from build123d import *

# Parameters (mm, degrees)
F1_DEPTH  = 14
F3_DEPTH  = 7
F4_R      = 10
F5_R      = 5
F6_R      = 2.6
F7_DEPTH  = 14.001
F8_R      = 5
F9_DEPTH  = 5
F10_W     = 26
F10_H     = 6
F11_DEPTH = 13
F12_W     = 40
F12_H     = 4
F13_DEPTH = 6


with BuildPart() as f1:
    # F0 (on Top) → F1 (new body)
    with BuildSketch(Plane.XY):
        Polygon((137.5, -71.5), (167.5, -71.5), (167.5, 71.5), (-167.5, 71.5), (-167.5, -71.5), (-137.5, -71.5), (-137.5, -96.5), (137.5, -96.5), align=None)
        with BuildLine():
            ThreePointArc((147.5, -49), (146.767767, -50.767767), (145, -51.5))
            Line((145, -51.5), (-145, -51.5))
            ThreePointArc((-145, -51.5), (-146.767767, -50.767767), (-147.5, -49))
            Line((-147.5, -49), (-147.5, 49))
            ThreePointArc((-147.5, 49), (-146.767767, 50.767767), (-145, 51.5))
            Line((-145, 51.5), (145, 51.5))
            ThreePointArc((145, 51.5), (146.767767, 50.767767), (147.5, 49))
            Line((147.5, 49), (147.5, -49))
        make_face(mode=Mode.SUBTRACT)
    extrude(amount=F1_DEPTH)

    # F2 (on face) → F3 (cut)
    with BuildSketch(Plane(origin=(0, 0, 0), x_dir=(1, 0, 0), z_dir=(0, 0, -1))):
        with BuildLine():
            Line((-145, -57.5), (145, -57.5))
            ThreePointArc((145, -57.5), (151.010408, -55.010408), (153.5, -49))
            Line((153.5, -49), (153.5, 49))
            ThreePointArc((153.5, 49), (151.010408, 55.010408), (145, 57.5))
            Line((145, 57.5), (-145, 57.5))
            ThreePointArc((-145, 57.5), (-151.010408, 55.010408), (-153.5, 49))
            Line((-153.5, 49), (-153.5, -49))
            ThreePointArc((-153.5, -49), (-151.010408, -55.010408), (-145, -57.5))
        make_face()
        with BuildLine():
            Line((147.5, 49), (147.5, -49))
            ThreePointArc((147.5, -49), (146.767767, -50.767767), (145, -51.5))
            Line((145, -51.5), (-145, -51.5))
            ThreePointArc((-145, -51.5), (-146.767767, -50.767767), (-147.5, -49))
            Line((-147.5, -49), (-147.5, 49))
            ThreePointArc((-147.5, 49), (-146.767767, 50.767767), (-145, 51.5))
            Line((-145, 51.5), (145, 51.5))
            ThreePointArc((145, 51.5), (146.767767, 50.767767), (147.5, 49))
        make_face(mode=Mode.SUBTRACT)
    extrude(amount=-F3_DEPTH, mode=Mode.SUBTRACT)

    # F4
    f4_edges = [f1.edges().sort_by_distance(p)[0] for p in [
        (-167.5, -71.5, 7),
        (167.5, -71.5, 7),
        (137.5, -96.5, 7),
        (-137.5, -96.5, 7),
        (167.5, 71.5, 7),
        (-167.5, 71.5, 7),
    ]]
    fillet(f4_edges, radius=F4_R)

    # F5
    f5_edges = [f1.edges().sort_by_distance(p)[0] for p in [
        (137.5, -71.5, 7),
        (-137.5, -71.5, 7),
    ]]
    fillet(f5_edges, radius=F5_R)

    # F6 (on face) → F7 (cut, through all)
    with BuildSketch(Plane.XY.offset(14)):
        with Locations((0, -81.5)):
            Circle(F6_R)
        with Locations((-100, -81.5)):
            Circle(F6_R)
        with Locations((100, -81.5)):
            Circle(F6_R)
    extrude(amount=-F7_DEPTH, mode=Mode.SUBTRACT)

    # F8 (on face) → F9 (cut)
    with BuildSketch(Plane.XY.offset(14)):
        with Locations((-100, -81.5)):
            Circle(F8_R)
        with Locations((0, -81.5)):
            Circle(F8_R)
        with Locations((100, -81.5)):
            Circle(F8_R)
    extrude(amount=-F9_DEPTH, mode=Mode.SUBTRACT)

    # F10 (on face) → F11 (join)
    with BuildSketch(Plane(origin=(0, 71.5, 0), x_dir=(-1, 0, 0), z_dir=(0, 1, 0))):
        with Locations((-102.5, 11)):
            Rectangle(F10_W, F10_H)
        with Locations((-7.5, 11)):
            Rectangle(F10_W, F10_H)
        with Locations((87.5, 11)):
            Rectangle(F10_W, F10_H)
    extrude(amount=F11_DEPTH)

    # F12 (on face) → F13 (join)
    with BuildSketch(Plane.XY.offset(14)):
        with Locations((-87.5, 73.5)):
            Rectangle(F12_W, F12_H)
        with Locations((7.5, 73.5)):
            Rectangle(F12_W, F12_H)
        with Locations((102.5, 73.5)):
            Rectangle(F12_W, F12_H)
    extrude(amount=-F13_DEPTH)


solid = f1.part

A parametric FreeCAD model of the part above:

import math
import FreeCAD as App
import Part
import Sketcher
from FreeCAD import Vector
Q = App.Units.Quantity


def edges_at(feature, points):
    """Names of the edges that pass closest to the given points."""
    edges = feature.Shape.Edges
    near = lambda p: min(range(len(edges)), key=lambda i: edges[i].distToShape(Part.Vertex(*p))[0])
    return sorted({f"Edge{near(p) + 1}" for p in points})

doc = App.newDocument("Part")
body = doc.addObject("PartDesign::Body", "Body")

sketch1 = body.newObject("Sketcher::SketchObject", "Sketch")
sketch1.AttachmentSupport = (doc.getObject("XY_Plane"), [""])
sketch1.MapMode = "FlatFace"
sketch1.addGeometry([
    Part.LineSegment(Vector(137.5, -71.5, 0), Vector(167.5, -71.5, 0)),
    Part.LineSegment(Vector(167.5, -71.5, 0), Vector(167.5, 71.5, 0)),
    Part.LineSegment(Vector(167.5, 71.5, 0), Vector(-167.5, 71.5, 0)),
    Part.LineSegment(Vector(-167.5, 71.5, 0), Vector(-167.5, -71.5, 0)),
    Part.LineSegment(Vector(-167.5, -71.5, 0), Vector(-137.5, -71.5, 0)),
    Part.LineSegment(Vector(-137.5, -71.5, 0), Vector(-137.5, -96.5, 0)),
    Part.LineSegment(Vector(-137.5, -96.5, 0), Vector(137.5, -96.5, 0)),
    Part.LineSegment(Vector(137.5, -96.5, 0), Vector(137.5, -71.5, 0)),
    Part.LineSegment(Vector(147.5, 49, 0), Vector(147.5, -49, 0)),
    Part.ArcOfCircle(Part.Circle(Vector(145, -49, 0), Vector(0, 0, 1), 2.5), math.radians(-90), math.radians(0)),
    Part.LineSegment(Vector(145, -51.5, 0), Vector(-145, -51.5, 0)),
    Part.ArcOfCircle(Part.Circle(Vector(-145, -49, 0), Vector(0, 0, 1), 2.5), math.radians(180), math.radians(270)),
    Part.LineSegment(Vector(-147.5, -49, 0), Vector(-147.5, 49, 0)),
    Part.ArcOfCircle(Part.Circle(Vector(-145, 49, 0), Vector(0, 0, 1), 2.5), math.radians(90), math.radians(180)),
    Part.LineSegment(Vector(-145, 51.5, 0), Vector(145, 51.5, 0)),
    Part.ArcOfCircle(Part.Circle(Vector(145, 49, 0), Vector(0, 0, 1), 2.5), math.radians(0), math.radians(90)),
], False)
sketch1.addConstraint([
    Sketcher.Constraint("Coincident", 0, 2, 1, 1),
    Sketcher.Constraint("Coincident", 1, 2, 2, 1),
    Sketcher.Constraint("Coincident", 2, 2, 3, 1),
    Sketcher.Constraint("Coincident", 3, 2, 4, 1),
    Sketcher.Constraint("Coincident", 4, 2, 5, 1),
    Sketcher.Constraint("Coincident", 5, 2, 6, 1),
    Sketcher.Constraint("Coincident", 6, 2, 7, 1),
    Sketcher.Constraint("Coincident", 7, 2, 0, 1),
    Sketcher.Constraint("Tangent", 8, 2, 9, 2),
    Sketcher.Constraint("Tangent", 9, 1, 10, 1),
    Sketcher.Constraint("Tangent", 10, 2, 11, 2),
    Sketcher.Constraint("Tangent", 11, 1, 12, 1),
    Sketcher.Constraint("Tangent", 12, 2, 13, 2),
    Sketcher.Constraint("Tangent", 13, 1, 14, 1),
    Sketcher.Constraint("Tangent", 14, 2, 15, 2),
    Sketcher.Constraint("Tangent", 15, 1, 8, 1),
    Sketcher.Constraint("Horizontal", 0),
    Sketcher.Constraint("Vertical", 1),
    Sketcher.Constraint("Horizontal", 2),
    Sketcher.Constraint("Vertical", 3),
    Sketcher.Constraint("Horizontal", 4),
    Sketcher.Constraint("Vertical", 5),
    Sketcher.Constraint("Horizontal", 6),
    Sketcher.Constraint("Vertical", 7),
    Sketcher.Constraint("Vertical", 8),
    Sketcher.Constraint("Horizontal", 10),
    Sketcher.Constraint("Vertical", 12),
    Sketcher.Constraint("Horizontal", 14),
    Sketcher.Constraint("Equal", 9, 11),
    Sketcher.Constraint("Equal", 11, 13),
    Sketcher.Constraint("Equal", 13, 15),
    Sketcher.Constraint("Symmetric", 9, 3, 13, 3, -1, 1),
    Sketcher.Constraint("Symmetric", 0, 2, 2, 2, -1, 1),
    Sketcher.Constraint("Symmetric", 4, 2, 7, 2, -2),
    Sketcher.Constraint("Radius", 9, Q("2.5 mm")),
    Sketcher.Constraint("DistanceX", 0, 1, 0, 2, Q("30 mm")),
    Sketcher.Constraint("DistanceX", 2, 2, 2, 1, Q("335 mm")),
    Sketcher.Constraint("DistanceX", 10, 2, 10, 1, Q("290 mm")),
    Sketcher.Constraint("DistanceY", 1, 1, 1, 2, Q("143 mm")),
    Sketcher.Constraint("DistanceY", 5, 2, 5, 1, Q("25 mm")),
    Sketcher.Constraint("DistanceY", 8, 2, 8, 1, Q("98 mm")),
])
pad1 = body.newObject("PartDesign::Pad", "Pad")
pad1.Profile = sketch1
pad1.Length = 14

sketch2 = body.newObject("Sketcher::SketchObject", "Sketch001")
sketch2.AttachmentSupport = (doc.getObject("XY_Plane"), [""])
sketch2.MapMode = "FlatFace"
sketch2.addGeometry([
    Part.LineSegment(Vector(-145, 57.5, 0), Vector(145, 57.5, 0)),
    Part.ArcOfCircle(Part.Circle(Vector(145, 49, 0), Vector(0, 0, 1), 8.5), math.radians(0), math.radians(90)),
    Part.LineSegment(Vector(153.5, 49, 0), Vector(153.5, -49, 0)),
    Part.ArcOfCircle(Part.Circle(Vector(145, -49, 0), Vector(0, 0, 1), 8.5), math.radians(-90), math.radians(0)),
    Part.LineSegment(Vector(145, -57.5, 0), Vector(-145, -57.5, 0)),
    Part.ArcOfCircle(Part.Circle(Vector(-145, -49, 0), Vector(0, 0, 1), 8.5), math.radians(180), math.radians(270)),
    Part.LineSegment(Vector(-153.5, -49, 0), Vector(-153.5, 49, 0)),
    Part.ArcOfCircle(Part.Circle(Vector(-145, 49, 0), Vector(0, 0, 1), 8.5), math.radians(90), math.radians(180)),
    Part.ArcOfCircle(Part.Circle(Vector(145, -49, 0), Vector(0, 0, 1), 2.5), math.radians(-90), math.radians(0)),
    Part.LineSegment(Vector(147.5, -49, 0), Vector(147.5, 49, 0)),
    Part.ArcOfCircle(Part.Circle(Vector(145, 49, 0), Vector(0, 0, 1), 2.5), math.radians(0), math.radians(90)),
    Part.LineSegment(Vector(145, 51.5, 0), Vector(-145, 51.5, 0)),
    Part.ArcOfCircle(Part.Circle(Vector(-145, 49, 0), Vector(0, 0, 1), 2.5), math.radians(90), math.radians(180)),
    Part.LineSegment(Vector(-147.5, 49, 0), Vector(-147.5, -49, 0)),
    Part.ArcOfCircle(Part.Circle(Vector(-145, -49, 0), Vector(0, 0, 1), 2.5), math.radians(180), math.radians(270)),
    Part.LineSegment(Vector(-145, -51.5, 0), Vector(145, -51.5, 0)),
], False)
sketch2.addConstraint([
    Sketcher.Constraint("Tangent", 0, 2, 1, 2),
    Sketcher.Constraint("Tangent", 1, 1, 2, 1),
    Sketcher.Constraint("Tangent", 2, 2, 3, 2),
    Sketcher.Constraint("Tangent", 3, 1, 4, 1),
    Sketcher.Constraint("Tangent", 4, 2, 5, 2),
    Sketcher.Constraint("Tangent", 5, 1, 6, 1),
    Sketcher.Constraint("Tangent", 6, 2, 7, 2),
    Sketcher.Constraint("Tangent", 7, 1, 0, 1),
    Sketcher.Constraint("Tangent", 8, 2, 9, 1),
    Sketcher.Constraint("Tangent", 9, 2, 10, 1),
    Sketcher.Constraint("Tangent", 10, 2, 11, 1),
    Sketcher.Constraint("Tangent", 11, 2, 12, 1),
    Sketcher.Constraint("Tangent", 12, 2, 13, 1),
    Sketcher.Constraint("Tangent", 13, 2, 14, 1),
    Sketcher.Constraint("Tangent", 14, 2, 15, 1),
    Sketcher.Constraint("Tangent", 15, 2, 8, 1),
    Sketcher.Constraint("Horizontal", 0),
    Sketcher.Constraint("Vertical", 2),
    Sketcher.Constraint("Horizontal", 4),
    Sketcher.Constraint("Vertical", 6),
    Sketcher.Constraint("Vertical", 9),
    Sketcher.Constraint("Horizontal", 11),
    Sketcher.Constraint("Vertical", 13),
    Sketcher.Constraint("Horizontal", 15),
    Sketcher.Constraint("Coincident", 8, 3, 3, 3),
    Sketcher.Constraint("Coincident", 10, 3, 1, 3),
    Sketcher.Constraint("Coincident", 12, 3, 7, 3),
    Sketcher.Constraint("Equal", 1, 3),
    Sketcher.Constraint("Equal", 3, 5),
    Sketcher.Constraint("Equal", 5, 7),
    Sketcher.Constraint("Equal", 12, 14),
    Sketcher.Constraint("Symmetric", 1, 3, 5, 3, -1, 1),
    Sketcher.Constraint("Radius", 1, Q("8.499999 mm")),
    Sketcher.Constraint("Radius", 8, Q("2.5 mm")),
    Sketcher.Constraint("DistanceX", 0, 1, 0, 2, Q("290 mm")),
    Sketcher.Constraint("DistanceY", 2, 2, 2, 1, Q("98 mm")),
])
pocket1 = body.newObject("PartDesign::Pocket", "Pocket")
pocket1.Profile = sketch2
pocket1.Length = 7
pocket1.Reversed = True
doc.recompute()

fillet = body.newObject("PartDesign::Fillet", "Fillet")
fillet.Base = (pocket1, edges_at(pocket1, [
    (-167.5, -71.5, 7),
    (167.5, -71.5, 7),
    (137.5, -96.5, 7),
    (-137.5, -96.5, 7),
    (167.5, 71.5, 7),
    (-167.5, 71.5, 7),
]))
fillet.Radius = 10
doc.recompute()

fillet2 = body.newObject("PartDesign::Fillet", "Fillet001")
fillet2.Base = (fillet, edges_at(fillet, [(137.5, -71.5, 7), (-137.5, -71.5, 7)]))
fillet2.Radius = 5

sketch3 = body.newObject("Sketcher::SketchObject", "Sketch002")
sketch3.AttachmentSupport = (doc.getObject("XY_Plane"), [""])
sketch3.MapMode = "FlatFace"
sketch3.AttachmentOffset = App.Placement(Vector(0, 0, 14), App.Rotation())
sketch3.addGeometry([
    Part.Circle(Vector(0, -81.5, 0), Vector(0, 0, 1), 2.6),
    Part.Circle(Vector(-100, -81.5, 0), Vector(0, 0, 1), 2.6),
    Part.Circle(Vector(100, -81.5, 0), Vector(0, 0, 1), 2.6),
], False)
sketch3.addConstraint([
    Sketcher.Constraint("Equal", 0, 1),
    Sketcher.Constraint("Equal", 1, 2),
    Sketcher.Constraint("Symmetric", 1, 3, 2, 3, -2),
    Sketcher.Constraint("PointOnObject", 0, 3, -2),
    Sketcher.Constraint("Horizontal", 0, 3, 1, 3),
    Sketcher.Constraint("Diameter", 0, Q("5.2 mm")),
    Sketcher.Constraint("DistanceX", 1, 3, -1, 1, Q("100 mm")),
    Sketcher.Constraint("DistanceY", 0, 3, -1, 1, Q("81.5 mm")),
])
pocket2 = body.newObject("PartDesign::Pocket", "Pocket001")
pocket2.Profile = sketch3
pocket2.Type = "ThroughAll"

sketch4 = body.newObject("Sketcher::SketchObject", "Sketch003")
sketch4.AttachmentSupport = (doc.getObject("XY_Plane"), [""])
sketch4.MapMode = "FlatFace"
sketch4.AttachmentOffset = App.Placement(Vector(0, 0, 14), App.Rotation())
sketch4.addGeometry([
    Part.Circle(Vector(-100, -82, 0), Vector(0, 0, 1), 5),
    Part.Circle(Vector(0, -82, 0), Vector(0, 0, 1), 5),
    Part.Circle(Vector(100, -82, 0), Vector(0, 0, 1), 5),
], False)
sketch4.addConstraint([
    Sketcher.Constraint("Equal", 0, 1),
    Sketcher.Constraint("Equal", 1, 2),
    Sketcher.Constraint("Symmetric", 0, 3, 2, 3, -2),
    Sketcher.Constraint("PointOnObject", 1, 3, -2),
    Sketcher.Constraint("Horizontal", 0, 3, 1, 3),
    Sketcher.Constraint("Diameter", 0, Q("10 mm")),
    Sketcher.Constraint("DistanceX", 0, 3, -1, 1, Q("100 mm")),
    Sketcher.Constraint("DistanceY", 0, 3, -1, 1, Q("81.5 mm")),
])
pocket3 = body.newObject("PartDesign::Pocket", "Pocket002")
pocket3.Profile = sketch4
pocket3.Length = 5

sketch5 = body.newObject("Sketcher::SketchObject", "Sketch004")
sketch5.AttachmentSupport = (doc.getObject("XZ_Plane"), [""])
sketch5.MapMode = "FlatFace"
sketch5.AttachmentOffset = App.Placement(Vector(0, 0, -71.5), App.Rotation())
sketch5.addGeometry([
    Part.LineSegment(Vector(116, 14, 0), Vector(116, 8, 0)),
    Part.LineSegment(Vector(116, 8, 0), Vector(90, 8, 0)),
    Part.LineSegment(Vector(90, 8, 0), Vector(90, 14, 0)),
    Part.LineSegment(Vector(90, 14, 0), Vector(116, 14, 0)),
    Part.LineSegment(Vector(20, 14, 0), Vector(20, 8, 0)),
    Part.LineSegment(Vector(20, 8, 0), Vector(-6, 8, 0)),
    Part.LineSegment(Vector(-6, 8, 0), Vector(-6, 14, 0)),
    Part.LineSegment(Vector(-6, 14, 0), Vector(20, 14, 0)),
    Part.LineSegment(Vector(-74, 14, 0), Vector(-74, 8, 0)),
    Part.LineSegment(Vector(-74, 8, 0), Vector(-100, 8, 0)),
    Part.LineSegment(Vector(-100, 8, 0), Vector(-100, 14, 0)),
    Part.LineSegment(Vector(-100, 14, 0), Vector(-74, 14, 0)),
], False)
sketch5.addConstraint([
    Sketcher.Constraint("Coincident", 0, 2, 1, 1),
    Sketcher.Constraint("Coincident", 1, 2, 2, 1),
    Sketcher.Constraint("Coincident", 2, 2, 3, 1),
    Sketcher.Constraint("Coincident", 3, 2, 0, 1),
    Sketcher.Constraint("Coincident", 4, 2, 5, 1),
    Sketcher.Constraint("Coincident", 5, 2, 6, 1),
    Sketcher.Constraint("Coincident", 6, 2, 7, 1),
    Sketcher.Constraint("Coincident", 7, 2, 4, 1),
    Sketcher.Constraint("Coincident", 8, 2, 9, 1),
    Sketcher.Constraint("Coincident", 9, 2, 10, 1),
    Sketcher.Constraint("Coincident", 10, 2, 11, 1),
    Sketcher.Constraint("Coincident", 11, 2, 8, 1),
    Sketcher.Constraint("Vertical", 0),
    Sketcher.Constraint("Horizontal", 1),
    Sketcher.Constraint("Vertical", 2),
    Sketcher.Constraint("Horizontal", 3),
    Sketcher.Constraint("Vertical", 4),
    Sketcher.Constraint("Horizontal", 5),
    Sketcher.Constraint("Vertical", 6),
    Sketcher.Constraint("Horizontal", 7),
    Sketcher.Constraint("Vertical", 8),
    Sketcher.Constraint("Horizontal", 9),
    Sketcher.Constraint("Vertical", 10),
    Sketcher.Constraint("Horizontal", 11),
    Sketcher.Constraint("Horizontal", 1, 2, 4, 2),
    Sketcher.Constraint("Horizontal", 3, 2, 6, 2),
    Sketcher.Constraint("Horizontal", 5, 2, 8, 2),
    Sketcher.Constraint("Horizontal", 7, 2, 10, 2),
    Sketcher.Constraint("Equal", 3, 5),
    Sketcher.Constraint("Equal", 7, 9),
    Sketcher.Constraint("DistanceX", 1, 2, 1, 1, Q("26 mm")),
    Sketcher.Constraint("DistanceY", 0, 2, 0, 1, Q("6 mm")),
    Sketcher.Constraint("DistanceY", -1, 1, 0, 2, Q("8 mm")),
    Sketcher.Constraint("DistanceX", 4, 2, 1, 2, Q("69 mm")),
    Sketcher.Constraint("DistanceX", 8, 2, 5, 2, Q("69 mm")),
    Sketcher.Constraint("DistanceX", -1, 1, 0, 2, Q("115.5 mm")),
])
pad2 = body.newObject("PartDesign::Pad", "Pad001")
pad2.Profile = sketch5
pad2.Length = 13
pad2.Reversed = True

sketch6 = body.newObject("Sketcher::SketchObject", "Sketch005")
sketch6.AttachmentSupport = (doc.getObject("XY_Plane"), [""])
sketch6.MapMode = "FlatFace"
sketch6.AttachmentOffset = App.Placement(Vector(0, 0, 14), App.Rotation())
sketch6.addGeometry([
    Part.LineSegment(Vector(-107.5, 75.5, 0), Vector(-107.5, 71.5, 0)),
    Part.LineSegment(Vector(-107.5, 71.5, 0), Vector(-67.5, 71.5, 0)),
    Part.LineSegment(Vector(-67.5, 71.5, 0), Vector(-67.5, 75.5, 0)),
    Part.LineSegment(Vector(-67.5, 75.5, 0), Vector(-107.5, 75.5, 0)),
    Part.LineSegment(Vector(-12.5, 75.5, 0), Vector(-12.5, 71.5, 0)),
    Part.LineSegment(Vector(-12.5, 71.5, 0), Vector(27.5, 71.5, 0)),
    Part.LineSegment(Vector(27.5, 71.5, 0), Vector(27.5, 75.5, 0)),
    Part.LineSegment(Vector(27.5, 75.5, 0), Vector(-12.5, 75.5, 0)),
    Part.LineSegment(Vector(82.5, 75.5, 0), Vector(82.5, 71.5, 0)),
    Part.LineSegment(Vector(82.5, 71.5, 0), Vector(122.5, 71.5, 0)),
    Part.LineSegment(Vector(122.5, 71.5, 0), Vector(122.5, 75.5, 0)),
    Part.LineSegment(Vector(122.5, 75.5, 0), Vector(82.5, 75.5, 0)),
], False)
sketch6.addConstraint([
    Sketcher.Constraint("Coincident", 0, 2, 1, 1),
    Sketcher.Constraint("Coincident", 1, 2, 2, 1),
    Sketcher.Constraint("Coincident", 2, 2, 3, 1),
    Sketcher.Constraint("Coincident", 3, 2, 0, 1),
    Sketcher.Constraint("Coincident", 4, 2, 5, 1),
    Sketcher.Constraint("Coincident", 5, 2, 6, 1),
    Sketcher.Constraint("Coincident", 6, 2, 7, 1),
    Sketcher.Constraint("Coincident", 7, 2, 4, 1),
    Sketcher.Constraint("Coincident", 8, 2, 9, 1),
    Sketcher.Constraint("Coincident", 9, 2, 10, 1),
    Sketcher.Constraint("Coincident", 10, 2, 11, 1),
    Sketcher.Constraint("Coincident", 11, 2, 8, 1),
    Sketcher.Constraint("Vertical", 0),
    Sketcher.Constraint("Horizontal", 1),
    Sketcher.Constraint("Vertical", 2),
    Sketcher.Constraint("Horizontal", 3),
    Sketcher.Constraint("Vertical", 4),
    Sketcher.Constraint("Horizontal", 5),
    Sketcher.Constraint("Vertical", 6),
    Sketcher.Constraint("Horizontal", 7),
    Sketcher.Constraint("Vertical", 8),
    Sketcher.Constraint("Horizontal", 9),
    Sketcher.Constraint("Vertical", 10),
    Sketcher.Constraint("Horizontal", 11),
    Sketcher.Constraint("Horizontal", 1, 2, 4, 2),
    Sketcher.Constraint("Horizontal", 3, 2, 6, 2),
    Sketcher.Constraint("Horizontal", 5, 2, 8, 2),
    Sketcher.Constraint("Horizontal", 7, 2, 10, 2),
    Sketcher.Constraint("Equal", 3, 5),
    Sketcher.Constraint("Equal", 7, 9),
    Sketcher.Constraint("DistanceX", 1, 1, 1, 2, Q("40 mm")),
    Sketcher.Constraint("DistanceY", 0, 2, 0, 1, Q("4 mm")),
    Sketcher.Constraint("DistanceX", 1, 2, 4, 2, Q("55 mm")),
    Sketcher.Constraint("DistanceX", 5, 2, 8, 2, Q("55 mm")),
    Sketcher.Constraint("DistanceX", 0, 2, -1, 1, Q("107.5 mm")),
    Sketcher.Constraint("DistanceY", -1, 1, 0, 2, Q("71.5 mm")),
])
pad3 = body.newObject("PartDesign::Pad", "Pad002")
pad3.Profile = sketch6
pad3.Length = 6
pad3.Reversed = True

doc.recompute()
